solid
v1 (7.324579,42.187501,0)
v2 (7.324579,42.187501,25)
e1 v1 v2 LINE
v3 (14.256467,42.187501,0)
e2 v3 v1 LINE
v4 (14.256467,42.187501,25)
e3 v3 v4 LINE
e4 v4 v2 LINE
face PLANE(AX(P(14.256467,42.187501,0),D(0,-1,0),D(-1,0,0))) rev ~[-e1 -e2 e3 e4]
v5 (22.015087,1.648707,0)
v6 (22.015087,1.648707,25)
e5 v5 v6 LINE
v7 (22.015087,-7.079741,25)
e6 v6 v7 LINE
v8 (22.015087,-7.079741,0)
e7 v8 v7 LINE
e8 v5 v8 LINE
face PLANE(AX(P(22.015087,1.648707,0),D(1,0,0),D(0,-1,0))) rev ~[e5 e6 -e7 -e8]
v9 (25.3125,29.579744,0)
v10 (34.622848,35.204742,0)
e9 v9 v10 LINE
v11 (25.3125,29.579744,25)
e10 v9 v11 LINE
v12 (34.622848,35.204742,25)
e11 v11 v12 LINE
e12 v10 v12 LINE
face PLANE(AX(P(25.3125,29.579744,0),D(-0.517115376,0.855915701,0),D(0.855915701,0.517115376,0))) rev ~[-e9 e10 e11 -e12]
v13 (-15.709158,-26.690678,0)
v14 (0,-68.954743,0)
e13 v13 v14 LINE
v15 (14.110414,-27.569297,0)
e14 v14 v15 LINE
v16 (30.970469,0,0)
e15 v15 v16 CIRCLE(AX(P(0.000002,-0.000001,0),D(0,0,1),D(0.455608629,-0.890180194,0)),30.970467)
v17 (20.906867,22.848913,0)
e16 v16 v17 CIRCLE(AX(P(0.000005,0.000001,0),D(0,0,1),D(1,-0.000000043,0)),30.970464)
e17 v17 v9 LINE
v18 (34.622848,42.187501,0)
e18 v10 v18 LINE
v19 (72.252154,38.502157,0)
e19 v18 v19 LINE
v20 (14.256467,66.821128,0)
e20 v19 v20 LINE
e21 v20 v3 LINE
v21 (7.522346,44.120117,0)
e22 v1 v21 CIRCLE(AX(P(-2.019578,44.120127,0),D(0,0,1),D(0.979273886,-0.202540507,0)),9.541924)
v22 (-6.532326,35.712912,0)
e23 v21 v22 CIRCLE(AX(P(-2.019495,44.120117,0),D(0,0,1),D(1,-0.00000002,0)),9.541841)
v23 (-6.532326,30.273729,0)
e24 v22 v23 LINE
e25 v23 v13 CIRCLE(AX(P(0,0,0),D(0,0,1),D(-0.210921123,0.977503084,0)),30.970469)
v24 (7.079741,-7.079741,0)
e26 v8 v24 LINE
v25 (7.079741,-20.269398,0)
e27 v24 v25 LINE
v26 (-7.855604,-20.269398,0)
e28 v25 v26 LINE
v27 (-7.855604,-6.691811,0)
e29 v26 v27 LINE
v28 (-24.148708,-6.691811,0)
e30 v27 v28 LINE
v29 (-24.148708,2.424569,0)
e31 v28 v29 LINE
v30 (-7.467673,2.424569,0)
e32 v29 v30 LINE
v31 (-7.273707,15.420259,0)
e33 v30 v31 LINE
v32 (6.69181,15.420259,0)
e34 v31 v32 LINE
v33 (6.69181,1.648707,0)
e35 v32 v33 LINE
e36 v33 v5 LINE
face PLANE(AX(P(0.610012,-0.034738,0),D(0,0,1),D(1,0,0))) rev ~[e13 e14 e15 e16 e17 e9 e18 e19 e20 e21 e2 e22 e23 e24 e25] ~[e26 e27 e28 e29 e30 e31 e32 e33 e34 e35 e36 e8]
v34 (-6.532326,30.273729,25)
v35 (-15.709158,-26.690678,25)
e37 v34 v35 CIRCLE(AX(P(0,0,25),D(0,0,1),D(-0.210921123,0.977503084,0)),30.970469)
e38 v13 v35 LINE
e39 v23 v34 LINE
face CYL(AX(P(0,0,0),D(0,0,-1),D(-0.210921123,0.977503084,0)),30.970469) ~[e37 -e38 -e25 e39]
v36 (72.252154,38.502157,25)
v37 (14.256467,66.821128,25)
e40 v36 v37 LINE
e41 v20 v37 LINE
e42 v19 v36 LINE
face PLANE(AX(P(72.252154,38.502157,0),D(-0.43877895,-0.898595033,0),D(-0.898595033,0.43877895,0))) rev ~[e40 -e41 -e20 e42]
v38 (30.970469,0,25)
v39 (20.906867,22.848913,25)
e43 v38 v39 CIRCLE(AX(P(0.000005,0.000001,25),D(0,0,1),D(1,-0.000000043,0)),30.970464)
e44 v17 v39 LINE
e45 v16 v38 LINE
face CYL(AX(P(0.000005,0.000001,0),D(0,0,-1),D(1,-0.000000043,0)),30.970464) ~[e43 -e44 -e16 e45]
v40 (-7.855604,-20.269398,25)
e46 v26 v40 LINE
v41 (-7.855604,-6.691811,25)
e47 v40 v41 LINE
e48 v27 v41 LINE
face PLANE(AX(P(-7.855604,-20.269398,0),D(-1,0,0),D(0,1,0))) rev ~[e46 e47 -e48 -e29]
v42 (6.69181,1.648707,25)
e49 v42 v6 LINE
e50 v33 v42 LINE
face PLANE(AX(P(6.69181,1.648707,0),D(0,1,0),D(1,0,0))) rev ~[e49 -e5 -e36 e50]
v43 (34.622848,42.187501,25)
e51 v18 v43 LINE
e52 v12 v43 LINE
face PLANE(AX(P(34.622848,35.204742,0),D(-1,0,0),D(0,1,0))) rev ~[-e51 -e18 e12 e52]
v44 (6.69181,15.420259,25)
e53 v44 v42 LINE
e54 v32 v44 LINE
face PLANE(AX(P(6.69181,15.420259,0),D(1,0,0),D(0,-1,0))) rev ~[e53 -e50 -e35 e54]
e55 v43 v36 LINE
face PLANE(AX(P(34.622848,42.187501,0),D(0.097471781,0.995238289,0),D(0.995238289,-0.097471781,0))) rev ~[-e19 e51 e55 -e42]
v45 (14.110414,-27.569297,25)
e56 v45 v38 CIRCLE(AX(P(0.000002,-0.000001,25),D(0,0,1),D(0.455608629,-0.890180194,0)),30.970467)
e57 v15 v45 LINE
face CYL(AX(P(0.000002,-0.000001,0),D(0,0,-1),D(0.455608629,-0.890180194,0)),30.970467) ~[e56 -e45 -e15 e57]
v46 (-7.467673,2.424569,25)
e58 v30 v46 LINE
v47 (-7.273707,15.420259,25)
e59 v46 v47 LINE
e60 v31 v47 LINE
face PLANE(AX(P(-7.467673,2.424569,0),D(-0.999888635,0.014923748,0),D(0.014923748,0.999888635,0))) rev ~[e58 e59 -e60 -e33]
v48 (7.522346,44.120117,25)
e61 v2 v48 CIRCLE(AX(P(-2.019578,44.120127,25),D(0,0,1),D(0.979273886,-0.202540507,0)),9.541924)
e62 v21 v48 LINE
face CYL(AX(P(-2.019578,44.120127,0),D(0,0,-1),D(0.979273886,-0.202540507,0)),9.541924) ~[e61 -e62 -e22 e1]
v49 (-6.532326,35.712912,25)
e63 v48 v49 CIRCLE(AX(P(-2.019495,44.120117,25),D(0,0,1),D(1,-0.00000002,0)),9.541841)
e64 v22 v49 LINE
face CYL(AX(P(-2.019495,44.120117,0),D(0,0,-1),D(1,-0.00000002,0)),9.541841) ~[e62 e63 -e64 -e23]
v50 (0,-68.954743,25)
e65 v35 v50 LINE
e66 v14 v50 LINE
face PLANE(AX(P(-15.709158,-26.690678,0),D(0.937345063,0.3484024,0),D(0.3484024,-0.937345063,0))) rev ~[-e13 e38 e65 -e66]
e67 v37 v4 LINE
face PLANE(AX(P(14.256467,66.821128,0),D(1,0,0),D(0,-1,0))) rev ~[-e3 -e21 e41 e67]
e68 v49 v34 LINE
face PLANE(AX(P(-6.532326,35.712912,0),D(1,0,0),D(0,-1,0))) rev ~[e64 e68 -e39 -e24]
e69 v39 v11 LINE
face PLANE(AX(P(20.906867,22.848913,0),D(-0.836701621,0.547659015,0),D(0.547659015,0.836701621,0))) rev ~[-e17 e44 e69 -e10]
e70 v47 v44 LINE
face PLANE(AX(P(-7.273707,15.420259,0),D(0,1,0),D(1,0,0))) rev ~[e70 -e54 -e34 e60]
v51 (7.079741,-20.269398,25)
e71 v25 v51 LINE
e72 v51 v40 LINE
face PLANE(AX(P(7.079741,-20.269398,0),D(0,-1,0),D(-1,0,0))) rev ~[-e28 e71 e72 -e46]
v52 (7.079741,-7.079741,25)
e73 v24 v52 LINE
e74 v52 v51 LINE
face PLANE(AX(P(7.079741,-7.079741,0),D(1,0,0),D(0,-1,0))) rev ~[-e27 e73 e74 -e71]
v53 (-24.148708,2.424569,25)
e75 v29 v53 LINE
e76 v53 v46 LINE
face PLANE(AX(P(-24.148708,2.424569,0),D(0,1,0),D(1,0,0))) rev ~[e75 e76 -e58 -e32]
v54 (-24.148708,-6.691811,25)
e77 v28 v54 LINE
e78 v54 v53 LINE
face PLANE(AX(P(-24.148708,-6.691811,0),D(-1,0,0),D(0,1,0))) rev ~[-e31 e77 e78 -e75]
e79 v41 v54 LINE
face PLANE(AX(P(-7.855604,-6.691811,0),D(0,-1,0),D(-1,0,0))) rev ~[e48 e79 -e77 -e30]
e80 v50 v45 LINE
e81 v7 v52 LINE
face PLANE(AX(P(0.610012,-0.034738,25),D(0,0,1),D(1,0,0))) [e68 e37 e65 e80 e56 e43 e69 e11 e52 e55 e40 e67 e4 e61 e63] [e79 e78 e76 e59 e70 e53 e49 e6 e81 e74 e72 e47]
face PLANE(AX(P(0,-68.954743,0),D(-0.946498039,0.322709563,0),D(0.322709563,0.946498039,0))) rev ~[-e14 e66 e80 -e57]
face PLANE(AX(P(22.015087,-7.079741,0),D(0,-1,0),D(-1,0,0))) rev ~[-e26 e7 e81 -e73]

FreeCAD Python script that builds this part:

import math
import FreeCAD as App
import Part
import Sketcher
Q = App.Units.Quantity

doc = App.newDocument("Part")
body = doc.addObject("PartDesign::Body", "Body")

sketch1 = body.newObject("Sketcher::SketchObject", "Sketch")
sketch1.AttachmentSupport = (doc.getObject("XY_Plane"), [""])
sketch1.MapMode = "FlatFace"
sketch1.addGeometry(Part.ArcOfCircle(Part.Circle(App.Vector(-2.019578, 44.120127, 0), App.Vector(0, 0, 1), 9.541924), math.radians(-11.68556), math.radians(-0.00006)), False)
sketch1.addGeometry(Part.ArcOfCircle(Part.Circle(App.Vector(-2.019495, 44.120117, 0), App.Vector(0, 0, 1), 9.541841), math.radians(-0.000001), math.radians(241.773928)), False)
sketch1.addGeometry(Part.LineSegment(App.Vector(-6.532326, 35.712912, 0), App.Vector(-6.532326, 30.273729, 0)), False)
sketch1.addGeometry(Part.ArcOfCircle(Part.Circle(App.Vector(0, 0, 0), App.Vector(0, 0, 1), 30.970469), math.radians(102.176338), math.radians(239.520488)), False)
sketch1.addGeometry(Part.LineSegment(App.Vector(-15.709158, -26.690678, 0), App.Vector(0, -68.954743, 0)), False)
sketch1.addGeometry(Part.LineSegment(App.Vector(0, -68.954743, 0), App.Vector(14.110414, -27.569297, 0)), False)
sketch1.addGeometry(Part.ArcOfCircle(Part.Circle(App.Vector(0.000002, -0.000001, 0), App.Vector(0, 0, 1), 30.970467), math.radians(-62.895899), math.radians(0.000001)), False)
sketch1.addGeometry(Part.ArcOfCircle(Part.Circle(App.Vector(0.000005, 0.000001, 0), App.Vector(0, 0, 1), 30.970464), math.radians(-0.000002), math.radians(47.541339)), False)
sketch1.addGeometry(Part.LineSegment(App.Vector(20.906867, 22.848913, 0), App.Vector(25.3125, 29.579744, 0)), False)
sketch1.addGeometry(Part.LineSegment(App.Vector(25.3125, 29.579744, 0), App.Vector(34.622848, 35.204742, 0)), False)
sketch1.addGeometry(Part.LineSegment(App.Vector(34.622848, 35.204742, 0), App.Vector(34.622848, 42.187501, 0)), False)
sketch1.addGeometry(Part.LineSegment(App.Vector(34.622848, 42.187501, 0), App.Vector(72.252154, 38.502157, 0)), False)
sketch1.addGeometry(Part.LineSegment(App.Vector(72.252154, 38.502157, 0), App.Vector(14.256467, 66.821128, 0)), False)
sketch1.addGeometry(Part.LineSegment(App.Vector(14.256467, 66.821128, 0), App.Vector(14.256467, 42.187501, 0)), False)
sketch1.addGeometry(Part.LineSegment(App.Vector(14.256467, 42.187501, 0), App.Vector(7.324579, 42.187501, 0)), False)
sketch1.addGeometry(Part.LineSegment(App.Vector(-24.148708, 2.424569, 0), App.Vector(-7.467673, 2.424569, 0)), False)
sketch1.addGeometry(Part.LineSegment(App.Vector(-7.467673, 2.424569, 0), App.Vector(-7.273707, 15.420259, 0)), False)
sketch1.addGeometry(Part.LineSegment(App.Vector(-7.273707, 15.420259, 0), App.Vector(6.69181, 15.420259, 0)), False)
sketch1.addGeometry(Part.LineSegment(App.Vector(6.69181, 15.420259, 0), App.Vector(6.69181, 1.648707, 0)), False)
sketch1.addGeometry(Part.LineSegment(App.Vector(6.69181, 1.648707, 0), App.Vector(22.015087, 1.648707, 0)), False)
sketch1.addGeometry(Part.LineSegment(App.Vector(22.015087, 1.648707, 0), App.Vector(22.015087, -7.079741, 0)), False)
sketch1.addGeometry(Part.LineSegment(App.Vector(22.015087, -7.079741, 0), App.Vector(7.079741, -7.079741, 0)), False)
sketch1.addGeometry(Part.LineSegment(App.Vector(7.079741, -7.079741, 0), App.Vector(7.079741, -20.269398, 0)), False)
sketch1.addGeometry(Part.LineSegment(App.Vector(7.079741, -20.269398, 0), App.Vector(-7.855604, -20.269398, 0)), False)
sketch1.addGeometry(Part.LineSegment(App.Vector(-7.855604, -20.269398, 0), App.Vector(-7.855604, -6.691811, 0)), False)
sketch1.addGeometry(Part.LineSegment(App.Vector(-7.855604, -6.691811, 0), App.Vector(-24.148708, -6.691811, 0)), False)
sketch1.addGeometry(Part.LineSegment(App.Vector(-24.148708, -6.691811, 0), App.Vector(-24.148708, 2.424569, 0)), False)
sketch1.addConstraint(Sketcher.Constraint("Coincident", 0, 2, 1, 1))
sketch1.addConstraint(Sketcher.Constraint("Coincident", 1, 2, 2, 1))
sketch1.addConstraint(Sketcher.Constraint("Coincident", 2, 2, 3, 1))
sketch1.addConstraint(Sketcher.Constraint("Coincident", 3, 2, 4, 1))
sketch1.addConstraint(Sketcher.Constraint("Coincident", 4, 2, 5, 1))
sketch1.addConstraint(Sketcher.Constraint("Coincident", 5, 2, 6, 1))
sketch1.addConstraint(Sketcher.Constraint("Coincident", 6, 2, 7, 1))
sketch1.addConstraint(Sketcher.Constraint("Coincident", 7, 2, 8, 1))
sketch1.addConstraint(Sketcher.Constraint("Coincident", 8, 2, 9, 1))
sketch1.addConstraint(Sketcher.Constraint("Coincident", 9, 2, 10, 1))
sketch1.addConstraint(Sketcher.Constraint("Coincident", 10, 2, 11, 1))
sketch1.addConstraint(Sketcher.Constraint("Coincident", 11, 2, 12, 1))
sketch1.addConstraint(Sketcher.Constraint("Coincident", 12, 2, 13, 1))
sketch1.addConstraint(Sketcher.Constraint("Coincident", 13, 2, 14, 1))
sketch1.addConstraint(Sketcher.Constraint("Coincident", 14, 2, 0, 1))
sketch1.addConstraint(Sketcher.Constraint("Coincident", 15, 2, 16, 1))
sketch1.addConstraint(Sketcher.Constraint("Coincident", 16, 2, 17, 1))
sketch1.addConstraint(Sketcher.Constraint("Coincident", 17, 2, 18, 1))
sketch1.addConstraint(Sketcher.Constraint("Coincident", 18, 2, 19, 1))
sketch1.addConstraint(Sketcher.Constraint("Coincident", 19, 2, 20, 1))
sketch1.addConstraint(Sketcher.Constraint("Coincident", 20, 2, 21, 1))
sketch1.addConstraint(Sketcher.Constraint("Coincident", 21, 2, 22, 1))
sketch1.addConstraint(Sketcher.Constraint("Coincident", 22, 2, 23, 1))
sketch1.addConstraint(Sketcher.Constraint("Coincident", 23, 2, 24, 1))
sketch1.addConstraint(Sketcher.Constraint("Coincident", 24, 2, 25, 1))
sketch1.addConstraint(Sketcher.Constraint("Coincident", 25, 2, 26, 1))
sketch1.addConstraint(Sketcher.Constraint("Coincident", 26, 2, 15, 1))
sketch1.addConstraint(Sketcher.Constraint("Vertical", 2))
sketch1.addConstraint(Sketcher.Constraint("Vertical", 10))
sketch1.addConstraint(Sketcher.Constraint("Vertical", 13))
sketch1.addConstraint(Sketcher.Constraint("Horizontal", 14))
sketch1.addConstraint(Sketcher.Constraint("Horizontal", 15))
sketch1.addConstraint(Sketcher.Constraint("Horizontal", 17))
sketch1.addConstraint(Sketcher.Constraint("Vertical", 18))
sketch1.addConstraint(Sketcher.Constraint("Horizontal", 19))
sketch1.addConstraint(Sketcher.Constraint("Vertical", 20))
sketch1.addConstraint(Sketcher.Constraint("Horizontal", 21))
sketch1.addConstraint(Sketcher.Constraint("Vertical", 22))
sketch1.addConstraint(Sketcher.Constraint("Horizontal", 23))
sketch1.addConstraint(Sketcher.Constraint("Vertical", 24))
sketch1.addConstraint(Sketcher.Constraint("Horizontal", 25))
sketch1.addConstraint(Sketcher.Constraint("Vertical", 26))
sketch1.addConstraint(Sketcher.Constraint("Coincident", 3, 3, -1, 1))
sketch1.addConstraint(Sketcher.Constraint("Coincident", 6, 3, -1, 1))
sketch1.addConstraint(Sketcher.Constraint("Coincident", 7, 3, -1, 1))
sketch1.addConstraint(Sketcher.Constraint("PointOnObject", 4, 2, -2))
sketch1.addConstraint(Sketcher.Constraint("PointOnObject", 6, 2, -1))
sketch1.addConstraint(Sketcher.Constraint("Radius", 1, Q("9.541841 mm")))
sketch1.addConstraint(Sketcher.Constraint("Radius", 3, Q("30.970469 mm")))
sketch1.addConstraint(Sketcher.Constraint("Radius", 0, Q("9.541924 mm")))
sketch1.addConstraint(Sketcher.Constraint("Radius", 6, Q("30.970467 mm")))
sketch1.addConstraint(Sketcher.Constraint("DistanceY", 7, 2, 1, 2, Q("12.863999 mm")))
sketch1.addConstraint(Sketcher.Constraint("DistanceY", 8, 2, 9, 2, Q("5.624998 mm")))
sketch1.addConstraint(Sketcher.Constraint("DistanceY", 0, 3, 12, 2, Q("22.701001 mm")))
sketch1.addConstraint(Sketcher.Constraint("DistanceX", 26, 2, 16, 2, Q("16.875001 mm")))
sketch1.addConstraint(Sketcher.Constraint("DistanceX", 14, 2, 14, 1, Q("6.931888 mm")))
sketch1.addConstraint(Sketcher.Constraint("DistanceY", 10, 1, 10, 2, Q("6.982759 mm")))
sketch1.addConstraint(Sketcher.Constraint("DistanceY", 26, 1, 26, 2, Q("9.11638 mm")))
sketch1.addConstraint(Sketcher.Constraint("DistanceX", -1, 1, 8, 2, Q("25.3125 mm")))
sketch1.addConstraint(Sketcher.Constraint("DistanceY", -1, 1, 10, 2, Q("42.187501 mm")))
sketch1.addConstraint(Sketcher.Constraint("DistanceY", -1, 1, 13, 2, Q("42.187501 mm")))
sketch1.addConstraint(Sketcher.Constraint("DistanceX", 1, 3, 7, 3, Q("2.0195 mm")))
sketch1.addConstraint(Sketcher.Constraint("DistanceY", 2, 2, 0, 3, Q("13.846398 mm")))
sketch1.addConstraint(Sketcher.Constraint("DistanceY", 5, 2, 7, 3, Q("27.569298 mm")))
sketch1.addConstraint(Sketcher.Constraint("DistanceX", 7, 2, 6, 2, Q("10.063602 mm")))
sketch1.addConstraint(Sketcher.Constraint("DistanceY", 5, 2, 22, 2, Q("7.299899 mm")))
sketch1.addConstraint(Sketcher.Constraint("Distance", 4, Q("45.089121 mm")))
sketch1.addConstraint(Sketcher.Constraint("Distance", 5, Q("43.724809 mm")))
sketch1.addConstraint(Sketcher.Constraint("DistanceX", 15, 1, 15, 2, Q("16.681035 mm")))
sketch1.addConstraint(Sketcher.Constraint("DistanceX", 17, 1, 17, 2, Q("13.965517 mm")))
sketch1.addConstraint(Sketcher.Constraint("DistanceX", 19, 1, 19, 2, Q("15.323277 mm")))
sketch1.addConstraint(Sketcher.Constraint("DistanceX", 21, 2, 21, 1, Q("14.935346 mm")))
sketch1.addConstraint(Sketcher.Constraint("DistanceX", 23, 2, 23, 1, Q("14.935345 mm")))
sketch1.addConstraint(Sketcher.Constraint("DistanceY", 2, 2, 2, 1, Q("5.439183 mm")))
sketch1.addConstraint(Sketcher.Constraint("DistanceY", 18, 2, 18, 1, Q("13.771552 mm")))
sketch1.addConstraint(Sketcher.Constraint("DistanceY", 20, 2, 20, 1, Q("8.728448 mm")))
sketch1.addConstraint(Sketcher.Constraint("DistanceY", 22, 2, 22, 1, Q("13.189657 mm")))
sketch1.addConstraint(Sketcher.Constraint("DistanceY", 24, 1, 24, 2, Q("13.577587 mm")))
sketch1.addConstraint(Sketcher.Constraint("DistanceX", -1, 1, 17, 2, Q("6.69181 mm")))
sketch1.addConstraint(Sketcher.Constraint("DistanceY", 2, 2, 0, 2, Q("13.846388 mm")))
sketch1.addConstraint(Sketcher.Constraint("DistanceX", 7, 2, 9, 2, Q("13.715981 mm")))
sketch1.addConstraint(Sketcher.Constraint("Distance", 11, Q("37.809343 mm")))
sketch1.addConstraint(Sketcher.Constraint("Distance", 12, Q("64.540405 mm")))
pad1 = body.newObject("PartDesign::Pad", "Pad")
pad1.Profile = sketch1
pad1.Length = 25

doc.recompute()
